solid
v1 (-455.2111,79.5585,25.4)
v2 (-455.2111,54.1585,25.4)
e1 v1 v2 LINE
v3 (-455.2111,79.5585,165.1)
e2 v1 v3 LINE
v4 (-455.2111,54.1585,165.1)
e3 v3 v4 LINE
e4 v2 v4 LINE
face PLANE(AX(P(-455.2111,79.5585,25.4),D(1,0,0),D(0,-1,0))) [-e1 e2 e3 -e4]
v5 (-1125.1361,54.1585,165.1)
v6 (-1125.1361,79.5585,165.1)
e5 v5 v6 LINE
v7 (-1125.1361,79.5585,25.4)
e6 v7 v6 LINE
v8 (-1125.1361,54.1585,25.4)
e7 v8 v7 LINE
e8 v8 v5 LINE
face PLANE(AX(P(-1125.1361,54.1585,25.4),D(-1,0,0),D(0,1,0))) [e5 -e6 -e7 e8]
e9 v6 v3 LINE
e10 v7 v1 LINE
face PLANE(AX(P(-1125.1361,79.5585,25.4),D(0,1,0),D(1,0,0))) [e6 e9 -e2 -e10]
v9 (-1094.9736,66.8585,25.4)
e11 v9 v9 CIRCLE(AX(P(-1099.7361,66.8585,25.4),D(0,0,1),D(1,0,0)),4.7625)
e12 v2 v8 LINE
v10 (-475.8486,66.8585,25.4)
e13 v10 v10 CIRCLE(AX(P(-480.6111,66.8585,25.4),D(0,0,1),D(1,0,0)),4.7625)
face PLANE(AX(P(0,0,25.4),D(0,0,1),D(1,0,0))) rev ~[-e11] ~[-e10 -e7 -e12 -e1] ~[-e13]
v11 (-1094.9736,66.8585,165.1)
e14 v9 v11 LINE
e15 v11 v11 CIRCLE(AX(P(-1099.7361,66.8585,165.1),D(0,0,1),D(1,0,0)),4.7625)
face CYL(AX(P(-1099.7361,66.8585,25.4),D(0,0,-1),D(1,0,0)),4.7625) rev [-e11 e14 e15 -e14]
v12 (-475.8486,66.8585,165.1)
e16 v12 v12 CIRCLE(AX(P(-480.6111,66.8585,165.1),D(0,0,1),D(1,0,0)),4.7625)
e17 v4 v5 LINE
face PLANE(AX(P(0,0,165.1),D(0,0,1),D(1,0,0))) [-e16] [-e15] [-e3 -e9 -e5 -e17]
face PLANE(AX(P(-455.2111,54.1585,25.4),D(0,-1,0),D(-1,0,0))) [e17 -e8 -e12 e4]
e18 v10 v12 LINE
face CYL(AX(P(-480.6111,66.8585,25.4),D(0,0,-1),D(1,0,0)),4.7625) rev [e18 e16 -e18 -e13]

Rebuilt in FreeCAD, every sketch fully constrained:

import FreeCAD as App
import Part
import Sketcher
from FreeCAD import Vector
Q = App.Units.Quantity

doc = App.newDocument("Part")
body = doc.addObject("PartDesign::Body", "Body")

sketch1 = body.newObject("Sketcher::SketchObject", "Sketch")
sketch1.AttachmentSupport = (doc.getObject("XY_Plane"), [""])
sketch1.MapMode = "FlatFace"
sketch1.AttachmentOffset = App.Placement(Vector(0, 0, 1 * 25.4), App.Rotation())
sketch1.addGeometry([
    Part.LineSegment(Vector(-1125.1361, 54.1585, 0), Vector(-455.2111, 54.1585, 0)),
    Part.LineSegment(Vector(-455.2111, 54.1585, 0), Vector(-455.2111, 79.5585, 0)),
    Part.LineSegment(Vector(-455.2111, 79.5585, 0), Vector(-1125.1361, 79.5585, 0)),
    Part.LineSegment(Vector(-1125.1361, 79.5585, 0), Vector(-1125.1361, 54.1585, 0)),
    Part.Circle(Vector(-1099.7361, 66.8585, 0), Vector(0, 0, 1), 4.7625),
    Part.Circle(Vector(-480.6111, 66.8585, 0), Vector(0, 0, 1), 4.7625),
], False)
sketch1.addConstraint([
    Sketcher.Constraint("Coincident", 0, 2, 1, 1),
    Sketcher.Constraint("Coincident", 1, 2, 2, 1),
    Sketcher.Constraint("Coincident", 2, 2, 3, 1),
    Sketcher.Constraint("Coincident", 3, 2, 0, 1),
    Sketcher.Constraint("Horizontal", 0),
    Sketcher.Constraint("Vertical", 1),
    Sketcher.Constraint("Horizontal", 2),
    Sketcher.Constraint("Vertical", 3),
    Sketcher.Constraint("Equal", 4, 5),
    Sketcher.Constraint("Horizontal", 4, 3, 5, 3),
    Sketcher.Constraint("DistanceY", 1, 1, 1, 2, Q("1 in")),
    Sketcher.Constraint("Diameter", 4, Q("0.375 in")),
    Sketcher.Constraint("DistanceX", 5, 3, 0, 2, Q("1 in")),
    Sketcher.Constraint("DistanceX", 2, 2, 4, 3, Q("1 in")),
    Sketcher.Constraint("DistanceX", 0, 1, 0, 2, Q("26.375 in")),
    Sketcher.Constraint("DistanceY", 0, 2, 5, 3, Q("0.5 in")),
    Sketcher.Constraint("DistanceX", 4, 3, -1, 1, Q("43.2967 in")),
    Sketcher.Constraint("DistanceY", -1, 1, 4, 3, Q("66.8585 mm")),
])
pad1 = body.newObject("PartDesign::Pad", "Pad")
pad1.Profile = sketch1
pad1.Length = Q("5.5 in")

doc.recompute()
